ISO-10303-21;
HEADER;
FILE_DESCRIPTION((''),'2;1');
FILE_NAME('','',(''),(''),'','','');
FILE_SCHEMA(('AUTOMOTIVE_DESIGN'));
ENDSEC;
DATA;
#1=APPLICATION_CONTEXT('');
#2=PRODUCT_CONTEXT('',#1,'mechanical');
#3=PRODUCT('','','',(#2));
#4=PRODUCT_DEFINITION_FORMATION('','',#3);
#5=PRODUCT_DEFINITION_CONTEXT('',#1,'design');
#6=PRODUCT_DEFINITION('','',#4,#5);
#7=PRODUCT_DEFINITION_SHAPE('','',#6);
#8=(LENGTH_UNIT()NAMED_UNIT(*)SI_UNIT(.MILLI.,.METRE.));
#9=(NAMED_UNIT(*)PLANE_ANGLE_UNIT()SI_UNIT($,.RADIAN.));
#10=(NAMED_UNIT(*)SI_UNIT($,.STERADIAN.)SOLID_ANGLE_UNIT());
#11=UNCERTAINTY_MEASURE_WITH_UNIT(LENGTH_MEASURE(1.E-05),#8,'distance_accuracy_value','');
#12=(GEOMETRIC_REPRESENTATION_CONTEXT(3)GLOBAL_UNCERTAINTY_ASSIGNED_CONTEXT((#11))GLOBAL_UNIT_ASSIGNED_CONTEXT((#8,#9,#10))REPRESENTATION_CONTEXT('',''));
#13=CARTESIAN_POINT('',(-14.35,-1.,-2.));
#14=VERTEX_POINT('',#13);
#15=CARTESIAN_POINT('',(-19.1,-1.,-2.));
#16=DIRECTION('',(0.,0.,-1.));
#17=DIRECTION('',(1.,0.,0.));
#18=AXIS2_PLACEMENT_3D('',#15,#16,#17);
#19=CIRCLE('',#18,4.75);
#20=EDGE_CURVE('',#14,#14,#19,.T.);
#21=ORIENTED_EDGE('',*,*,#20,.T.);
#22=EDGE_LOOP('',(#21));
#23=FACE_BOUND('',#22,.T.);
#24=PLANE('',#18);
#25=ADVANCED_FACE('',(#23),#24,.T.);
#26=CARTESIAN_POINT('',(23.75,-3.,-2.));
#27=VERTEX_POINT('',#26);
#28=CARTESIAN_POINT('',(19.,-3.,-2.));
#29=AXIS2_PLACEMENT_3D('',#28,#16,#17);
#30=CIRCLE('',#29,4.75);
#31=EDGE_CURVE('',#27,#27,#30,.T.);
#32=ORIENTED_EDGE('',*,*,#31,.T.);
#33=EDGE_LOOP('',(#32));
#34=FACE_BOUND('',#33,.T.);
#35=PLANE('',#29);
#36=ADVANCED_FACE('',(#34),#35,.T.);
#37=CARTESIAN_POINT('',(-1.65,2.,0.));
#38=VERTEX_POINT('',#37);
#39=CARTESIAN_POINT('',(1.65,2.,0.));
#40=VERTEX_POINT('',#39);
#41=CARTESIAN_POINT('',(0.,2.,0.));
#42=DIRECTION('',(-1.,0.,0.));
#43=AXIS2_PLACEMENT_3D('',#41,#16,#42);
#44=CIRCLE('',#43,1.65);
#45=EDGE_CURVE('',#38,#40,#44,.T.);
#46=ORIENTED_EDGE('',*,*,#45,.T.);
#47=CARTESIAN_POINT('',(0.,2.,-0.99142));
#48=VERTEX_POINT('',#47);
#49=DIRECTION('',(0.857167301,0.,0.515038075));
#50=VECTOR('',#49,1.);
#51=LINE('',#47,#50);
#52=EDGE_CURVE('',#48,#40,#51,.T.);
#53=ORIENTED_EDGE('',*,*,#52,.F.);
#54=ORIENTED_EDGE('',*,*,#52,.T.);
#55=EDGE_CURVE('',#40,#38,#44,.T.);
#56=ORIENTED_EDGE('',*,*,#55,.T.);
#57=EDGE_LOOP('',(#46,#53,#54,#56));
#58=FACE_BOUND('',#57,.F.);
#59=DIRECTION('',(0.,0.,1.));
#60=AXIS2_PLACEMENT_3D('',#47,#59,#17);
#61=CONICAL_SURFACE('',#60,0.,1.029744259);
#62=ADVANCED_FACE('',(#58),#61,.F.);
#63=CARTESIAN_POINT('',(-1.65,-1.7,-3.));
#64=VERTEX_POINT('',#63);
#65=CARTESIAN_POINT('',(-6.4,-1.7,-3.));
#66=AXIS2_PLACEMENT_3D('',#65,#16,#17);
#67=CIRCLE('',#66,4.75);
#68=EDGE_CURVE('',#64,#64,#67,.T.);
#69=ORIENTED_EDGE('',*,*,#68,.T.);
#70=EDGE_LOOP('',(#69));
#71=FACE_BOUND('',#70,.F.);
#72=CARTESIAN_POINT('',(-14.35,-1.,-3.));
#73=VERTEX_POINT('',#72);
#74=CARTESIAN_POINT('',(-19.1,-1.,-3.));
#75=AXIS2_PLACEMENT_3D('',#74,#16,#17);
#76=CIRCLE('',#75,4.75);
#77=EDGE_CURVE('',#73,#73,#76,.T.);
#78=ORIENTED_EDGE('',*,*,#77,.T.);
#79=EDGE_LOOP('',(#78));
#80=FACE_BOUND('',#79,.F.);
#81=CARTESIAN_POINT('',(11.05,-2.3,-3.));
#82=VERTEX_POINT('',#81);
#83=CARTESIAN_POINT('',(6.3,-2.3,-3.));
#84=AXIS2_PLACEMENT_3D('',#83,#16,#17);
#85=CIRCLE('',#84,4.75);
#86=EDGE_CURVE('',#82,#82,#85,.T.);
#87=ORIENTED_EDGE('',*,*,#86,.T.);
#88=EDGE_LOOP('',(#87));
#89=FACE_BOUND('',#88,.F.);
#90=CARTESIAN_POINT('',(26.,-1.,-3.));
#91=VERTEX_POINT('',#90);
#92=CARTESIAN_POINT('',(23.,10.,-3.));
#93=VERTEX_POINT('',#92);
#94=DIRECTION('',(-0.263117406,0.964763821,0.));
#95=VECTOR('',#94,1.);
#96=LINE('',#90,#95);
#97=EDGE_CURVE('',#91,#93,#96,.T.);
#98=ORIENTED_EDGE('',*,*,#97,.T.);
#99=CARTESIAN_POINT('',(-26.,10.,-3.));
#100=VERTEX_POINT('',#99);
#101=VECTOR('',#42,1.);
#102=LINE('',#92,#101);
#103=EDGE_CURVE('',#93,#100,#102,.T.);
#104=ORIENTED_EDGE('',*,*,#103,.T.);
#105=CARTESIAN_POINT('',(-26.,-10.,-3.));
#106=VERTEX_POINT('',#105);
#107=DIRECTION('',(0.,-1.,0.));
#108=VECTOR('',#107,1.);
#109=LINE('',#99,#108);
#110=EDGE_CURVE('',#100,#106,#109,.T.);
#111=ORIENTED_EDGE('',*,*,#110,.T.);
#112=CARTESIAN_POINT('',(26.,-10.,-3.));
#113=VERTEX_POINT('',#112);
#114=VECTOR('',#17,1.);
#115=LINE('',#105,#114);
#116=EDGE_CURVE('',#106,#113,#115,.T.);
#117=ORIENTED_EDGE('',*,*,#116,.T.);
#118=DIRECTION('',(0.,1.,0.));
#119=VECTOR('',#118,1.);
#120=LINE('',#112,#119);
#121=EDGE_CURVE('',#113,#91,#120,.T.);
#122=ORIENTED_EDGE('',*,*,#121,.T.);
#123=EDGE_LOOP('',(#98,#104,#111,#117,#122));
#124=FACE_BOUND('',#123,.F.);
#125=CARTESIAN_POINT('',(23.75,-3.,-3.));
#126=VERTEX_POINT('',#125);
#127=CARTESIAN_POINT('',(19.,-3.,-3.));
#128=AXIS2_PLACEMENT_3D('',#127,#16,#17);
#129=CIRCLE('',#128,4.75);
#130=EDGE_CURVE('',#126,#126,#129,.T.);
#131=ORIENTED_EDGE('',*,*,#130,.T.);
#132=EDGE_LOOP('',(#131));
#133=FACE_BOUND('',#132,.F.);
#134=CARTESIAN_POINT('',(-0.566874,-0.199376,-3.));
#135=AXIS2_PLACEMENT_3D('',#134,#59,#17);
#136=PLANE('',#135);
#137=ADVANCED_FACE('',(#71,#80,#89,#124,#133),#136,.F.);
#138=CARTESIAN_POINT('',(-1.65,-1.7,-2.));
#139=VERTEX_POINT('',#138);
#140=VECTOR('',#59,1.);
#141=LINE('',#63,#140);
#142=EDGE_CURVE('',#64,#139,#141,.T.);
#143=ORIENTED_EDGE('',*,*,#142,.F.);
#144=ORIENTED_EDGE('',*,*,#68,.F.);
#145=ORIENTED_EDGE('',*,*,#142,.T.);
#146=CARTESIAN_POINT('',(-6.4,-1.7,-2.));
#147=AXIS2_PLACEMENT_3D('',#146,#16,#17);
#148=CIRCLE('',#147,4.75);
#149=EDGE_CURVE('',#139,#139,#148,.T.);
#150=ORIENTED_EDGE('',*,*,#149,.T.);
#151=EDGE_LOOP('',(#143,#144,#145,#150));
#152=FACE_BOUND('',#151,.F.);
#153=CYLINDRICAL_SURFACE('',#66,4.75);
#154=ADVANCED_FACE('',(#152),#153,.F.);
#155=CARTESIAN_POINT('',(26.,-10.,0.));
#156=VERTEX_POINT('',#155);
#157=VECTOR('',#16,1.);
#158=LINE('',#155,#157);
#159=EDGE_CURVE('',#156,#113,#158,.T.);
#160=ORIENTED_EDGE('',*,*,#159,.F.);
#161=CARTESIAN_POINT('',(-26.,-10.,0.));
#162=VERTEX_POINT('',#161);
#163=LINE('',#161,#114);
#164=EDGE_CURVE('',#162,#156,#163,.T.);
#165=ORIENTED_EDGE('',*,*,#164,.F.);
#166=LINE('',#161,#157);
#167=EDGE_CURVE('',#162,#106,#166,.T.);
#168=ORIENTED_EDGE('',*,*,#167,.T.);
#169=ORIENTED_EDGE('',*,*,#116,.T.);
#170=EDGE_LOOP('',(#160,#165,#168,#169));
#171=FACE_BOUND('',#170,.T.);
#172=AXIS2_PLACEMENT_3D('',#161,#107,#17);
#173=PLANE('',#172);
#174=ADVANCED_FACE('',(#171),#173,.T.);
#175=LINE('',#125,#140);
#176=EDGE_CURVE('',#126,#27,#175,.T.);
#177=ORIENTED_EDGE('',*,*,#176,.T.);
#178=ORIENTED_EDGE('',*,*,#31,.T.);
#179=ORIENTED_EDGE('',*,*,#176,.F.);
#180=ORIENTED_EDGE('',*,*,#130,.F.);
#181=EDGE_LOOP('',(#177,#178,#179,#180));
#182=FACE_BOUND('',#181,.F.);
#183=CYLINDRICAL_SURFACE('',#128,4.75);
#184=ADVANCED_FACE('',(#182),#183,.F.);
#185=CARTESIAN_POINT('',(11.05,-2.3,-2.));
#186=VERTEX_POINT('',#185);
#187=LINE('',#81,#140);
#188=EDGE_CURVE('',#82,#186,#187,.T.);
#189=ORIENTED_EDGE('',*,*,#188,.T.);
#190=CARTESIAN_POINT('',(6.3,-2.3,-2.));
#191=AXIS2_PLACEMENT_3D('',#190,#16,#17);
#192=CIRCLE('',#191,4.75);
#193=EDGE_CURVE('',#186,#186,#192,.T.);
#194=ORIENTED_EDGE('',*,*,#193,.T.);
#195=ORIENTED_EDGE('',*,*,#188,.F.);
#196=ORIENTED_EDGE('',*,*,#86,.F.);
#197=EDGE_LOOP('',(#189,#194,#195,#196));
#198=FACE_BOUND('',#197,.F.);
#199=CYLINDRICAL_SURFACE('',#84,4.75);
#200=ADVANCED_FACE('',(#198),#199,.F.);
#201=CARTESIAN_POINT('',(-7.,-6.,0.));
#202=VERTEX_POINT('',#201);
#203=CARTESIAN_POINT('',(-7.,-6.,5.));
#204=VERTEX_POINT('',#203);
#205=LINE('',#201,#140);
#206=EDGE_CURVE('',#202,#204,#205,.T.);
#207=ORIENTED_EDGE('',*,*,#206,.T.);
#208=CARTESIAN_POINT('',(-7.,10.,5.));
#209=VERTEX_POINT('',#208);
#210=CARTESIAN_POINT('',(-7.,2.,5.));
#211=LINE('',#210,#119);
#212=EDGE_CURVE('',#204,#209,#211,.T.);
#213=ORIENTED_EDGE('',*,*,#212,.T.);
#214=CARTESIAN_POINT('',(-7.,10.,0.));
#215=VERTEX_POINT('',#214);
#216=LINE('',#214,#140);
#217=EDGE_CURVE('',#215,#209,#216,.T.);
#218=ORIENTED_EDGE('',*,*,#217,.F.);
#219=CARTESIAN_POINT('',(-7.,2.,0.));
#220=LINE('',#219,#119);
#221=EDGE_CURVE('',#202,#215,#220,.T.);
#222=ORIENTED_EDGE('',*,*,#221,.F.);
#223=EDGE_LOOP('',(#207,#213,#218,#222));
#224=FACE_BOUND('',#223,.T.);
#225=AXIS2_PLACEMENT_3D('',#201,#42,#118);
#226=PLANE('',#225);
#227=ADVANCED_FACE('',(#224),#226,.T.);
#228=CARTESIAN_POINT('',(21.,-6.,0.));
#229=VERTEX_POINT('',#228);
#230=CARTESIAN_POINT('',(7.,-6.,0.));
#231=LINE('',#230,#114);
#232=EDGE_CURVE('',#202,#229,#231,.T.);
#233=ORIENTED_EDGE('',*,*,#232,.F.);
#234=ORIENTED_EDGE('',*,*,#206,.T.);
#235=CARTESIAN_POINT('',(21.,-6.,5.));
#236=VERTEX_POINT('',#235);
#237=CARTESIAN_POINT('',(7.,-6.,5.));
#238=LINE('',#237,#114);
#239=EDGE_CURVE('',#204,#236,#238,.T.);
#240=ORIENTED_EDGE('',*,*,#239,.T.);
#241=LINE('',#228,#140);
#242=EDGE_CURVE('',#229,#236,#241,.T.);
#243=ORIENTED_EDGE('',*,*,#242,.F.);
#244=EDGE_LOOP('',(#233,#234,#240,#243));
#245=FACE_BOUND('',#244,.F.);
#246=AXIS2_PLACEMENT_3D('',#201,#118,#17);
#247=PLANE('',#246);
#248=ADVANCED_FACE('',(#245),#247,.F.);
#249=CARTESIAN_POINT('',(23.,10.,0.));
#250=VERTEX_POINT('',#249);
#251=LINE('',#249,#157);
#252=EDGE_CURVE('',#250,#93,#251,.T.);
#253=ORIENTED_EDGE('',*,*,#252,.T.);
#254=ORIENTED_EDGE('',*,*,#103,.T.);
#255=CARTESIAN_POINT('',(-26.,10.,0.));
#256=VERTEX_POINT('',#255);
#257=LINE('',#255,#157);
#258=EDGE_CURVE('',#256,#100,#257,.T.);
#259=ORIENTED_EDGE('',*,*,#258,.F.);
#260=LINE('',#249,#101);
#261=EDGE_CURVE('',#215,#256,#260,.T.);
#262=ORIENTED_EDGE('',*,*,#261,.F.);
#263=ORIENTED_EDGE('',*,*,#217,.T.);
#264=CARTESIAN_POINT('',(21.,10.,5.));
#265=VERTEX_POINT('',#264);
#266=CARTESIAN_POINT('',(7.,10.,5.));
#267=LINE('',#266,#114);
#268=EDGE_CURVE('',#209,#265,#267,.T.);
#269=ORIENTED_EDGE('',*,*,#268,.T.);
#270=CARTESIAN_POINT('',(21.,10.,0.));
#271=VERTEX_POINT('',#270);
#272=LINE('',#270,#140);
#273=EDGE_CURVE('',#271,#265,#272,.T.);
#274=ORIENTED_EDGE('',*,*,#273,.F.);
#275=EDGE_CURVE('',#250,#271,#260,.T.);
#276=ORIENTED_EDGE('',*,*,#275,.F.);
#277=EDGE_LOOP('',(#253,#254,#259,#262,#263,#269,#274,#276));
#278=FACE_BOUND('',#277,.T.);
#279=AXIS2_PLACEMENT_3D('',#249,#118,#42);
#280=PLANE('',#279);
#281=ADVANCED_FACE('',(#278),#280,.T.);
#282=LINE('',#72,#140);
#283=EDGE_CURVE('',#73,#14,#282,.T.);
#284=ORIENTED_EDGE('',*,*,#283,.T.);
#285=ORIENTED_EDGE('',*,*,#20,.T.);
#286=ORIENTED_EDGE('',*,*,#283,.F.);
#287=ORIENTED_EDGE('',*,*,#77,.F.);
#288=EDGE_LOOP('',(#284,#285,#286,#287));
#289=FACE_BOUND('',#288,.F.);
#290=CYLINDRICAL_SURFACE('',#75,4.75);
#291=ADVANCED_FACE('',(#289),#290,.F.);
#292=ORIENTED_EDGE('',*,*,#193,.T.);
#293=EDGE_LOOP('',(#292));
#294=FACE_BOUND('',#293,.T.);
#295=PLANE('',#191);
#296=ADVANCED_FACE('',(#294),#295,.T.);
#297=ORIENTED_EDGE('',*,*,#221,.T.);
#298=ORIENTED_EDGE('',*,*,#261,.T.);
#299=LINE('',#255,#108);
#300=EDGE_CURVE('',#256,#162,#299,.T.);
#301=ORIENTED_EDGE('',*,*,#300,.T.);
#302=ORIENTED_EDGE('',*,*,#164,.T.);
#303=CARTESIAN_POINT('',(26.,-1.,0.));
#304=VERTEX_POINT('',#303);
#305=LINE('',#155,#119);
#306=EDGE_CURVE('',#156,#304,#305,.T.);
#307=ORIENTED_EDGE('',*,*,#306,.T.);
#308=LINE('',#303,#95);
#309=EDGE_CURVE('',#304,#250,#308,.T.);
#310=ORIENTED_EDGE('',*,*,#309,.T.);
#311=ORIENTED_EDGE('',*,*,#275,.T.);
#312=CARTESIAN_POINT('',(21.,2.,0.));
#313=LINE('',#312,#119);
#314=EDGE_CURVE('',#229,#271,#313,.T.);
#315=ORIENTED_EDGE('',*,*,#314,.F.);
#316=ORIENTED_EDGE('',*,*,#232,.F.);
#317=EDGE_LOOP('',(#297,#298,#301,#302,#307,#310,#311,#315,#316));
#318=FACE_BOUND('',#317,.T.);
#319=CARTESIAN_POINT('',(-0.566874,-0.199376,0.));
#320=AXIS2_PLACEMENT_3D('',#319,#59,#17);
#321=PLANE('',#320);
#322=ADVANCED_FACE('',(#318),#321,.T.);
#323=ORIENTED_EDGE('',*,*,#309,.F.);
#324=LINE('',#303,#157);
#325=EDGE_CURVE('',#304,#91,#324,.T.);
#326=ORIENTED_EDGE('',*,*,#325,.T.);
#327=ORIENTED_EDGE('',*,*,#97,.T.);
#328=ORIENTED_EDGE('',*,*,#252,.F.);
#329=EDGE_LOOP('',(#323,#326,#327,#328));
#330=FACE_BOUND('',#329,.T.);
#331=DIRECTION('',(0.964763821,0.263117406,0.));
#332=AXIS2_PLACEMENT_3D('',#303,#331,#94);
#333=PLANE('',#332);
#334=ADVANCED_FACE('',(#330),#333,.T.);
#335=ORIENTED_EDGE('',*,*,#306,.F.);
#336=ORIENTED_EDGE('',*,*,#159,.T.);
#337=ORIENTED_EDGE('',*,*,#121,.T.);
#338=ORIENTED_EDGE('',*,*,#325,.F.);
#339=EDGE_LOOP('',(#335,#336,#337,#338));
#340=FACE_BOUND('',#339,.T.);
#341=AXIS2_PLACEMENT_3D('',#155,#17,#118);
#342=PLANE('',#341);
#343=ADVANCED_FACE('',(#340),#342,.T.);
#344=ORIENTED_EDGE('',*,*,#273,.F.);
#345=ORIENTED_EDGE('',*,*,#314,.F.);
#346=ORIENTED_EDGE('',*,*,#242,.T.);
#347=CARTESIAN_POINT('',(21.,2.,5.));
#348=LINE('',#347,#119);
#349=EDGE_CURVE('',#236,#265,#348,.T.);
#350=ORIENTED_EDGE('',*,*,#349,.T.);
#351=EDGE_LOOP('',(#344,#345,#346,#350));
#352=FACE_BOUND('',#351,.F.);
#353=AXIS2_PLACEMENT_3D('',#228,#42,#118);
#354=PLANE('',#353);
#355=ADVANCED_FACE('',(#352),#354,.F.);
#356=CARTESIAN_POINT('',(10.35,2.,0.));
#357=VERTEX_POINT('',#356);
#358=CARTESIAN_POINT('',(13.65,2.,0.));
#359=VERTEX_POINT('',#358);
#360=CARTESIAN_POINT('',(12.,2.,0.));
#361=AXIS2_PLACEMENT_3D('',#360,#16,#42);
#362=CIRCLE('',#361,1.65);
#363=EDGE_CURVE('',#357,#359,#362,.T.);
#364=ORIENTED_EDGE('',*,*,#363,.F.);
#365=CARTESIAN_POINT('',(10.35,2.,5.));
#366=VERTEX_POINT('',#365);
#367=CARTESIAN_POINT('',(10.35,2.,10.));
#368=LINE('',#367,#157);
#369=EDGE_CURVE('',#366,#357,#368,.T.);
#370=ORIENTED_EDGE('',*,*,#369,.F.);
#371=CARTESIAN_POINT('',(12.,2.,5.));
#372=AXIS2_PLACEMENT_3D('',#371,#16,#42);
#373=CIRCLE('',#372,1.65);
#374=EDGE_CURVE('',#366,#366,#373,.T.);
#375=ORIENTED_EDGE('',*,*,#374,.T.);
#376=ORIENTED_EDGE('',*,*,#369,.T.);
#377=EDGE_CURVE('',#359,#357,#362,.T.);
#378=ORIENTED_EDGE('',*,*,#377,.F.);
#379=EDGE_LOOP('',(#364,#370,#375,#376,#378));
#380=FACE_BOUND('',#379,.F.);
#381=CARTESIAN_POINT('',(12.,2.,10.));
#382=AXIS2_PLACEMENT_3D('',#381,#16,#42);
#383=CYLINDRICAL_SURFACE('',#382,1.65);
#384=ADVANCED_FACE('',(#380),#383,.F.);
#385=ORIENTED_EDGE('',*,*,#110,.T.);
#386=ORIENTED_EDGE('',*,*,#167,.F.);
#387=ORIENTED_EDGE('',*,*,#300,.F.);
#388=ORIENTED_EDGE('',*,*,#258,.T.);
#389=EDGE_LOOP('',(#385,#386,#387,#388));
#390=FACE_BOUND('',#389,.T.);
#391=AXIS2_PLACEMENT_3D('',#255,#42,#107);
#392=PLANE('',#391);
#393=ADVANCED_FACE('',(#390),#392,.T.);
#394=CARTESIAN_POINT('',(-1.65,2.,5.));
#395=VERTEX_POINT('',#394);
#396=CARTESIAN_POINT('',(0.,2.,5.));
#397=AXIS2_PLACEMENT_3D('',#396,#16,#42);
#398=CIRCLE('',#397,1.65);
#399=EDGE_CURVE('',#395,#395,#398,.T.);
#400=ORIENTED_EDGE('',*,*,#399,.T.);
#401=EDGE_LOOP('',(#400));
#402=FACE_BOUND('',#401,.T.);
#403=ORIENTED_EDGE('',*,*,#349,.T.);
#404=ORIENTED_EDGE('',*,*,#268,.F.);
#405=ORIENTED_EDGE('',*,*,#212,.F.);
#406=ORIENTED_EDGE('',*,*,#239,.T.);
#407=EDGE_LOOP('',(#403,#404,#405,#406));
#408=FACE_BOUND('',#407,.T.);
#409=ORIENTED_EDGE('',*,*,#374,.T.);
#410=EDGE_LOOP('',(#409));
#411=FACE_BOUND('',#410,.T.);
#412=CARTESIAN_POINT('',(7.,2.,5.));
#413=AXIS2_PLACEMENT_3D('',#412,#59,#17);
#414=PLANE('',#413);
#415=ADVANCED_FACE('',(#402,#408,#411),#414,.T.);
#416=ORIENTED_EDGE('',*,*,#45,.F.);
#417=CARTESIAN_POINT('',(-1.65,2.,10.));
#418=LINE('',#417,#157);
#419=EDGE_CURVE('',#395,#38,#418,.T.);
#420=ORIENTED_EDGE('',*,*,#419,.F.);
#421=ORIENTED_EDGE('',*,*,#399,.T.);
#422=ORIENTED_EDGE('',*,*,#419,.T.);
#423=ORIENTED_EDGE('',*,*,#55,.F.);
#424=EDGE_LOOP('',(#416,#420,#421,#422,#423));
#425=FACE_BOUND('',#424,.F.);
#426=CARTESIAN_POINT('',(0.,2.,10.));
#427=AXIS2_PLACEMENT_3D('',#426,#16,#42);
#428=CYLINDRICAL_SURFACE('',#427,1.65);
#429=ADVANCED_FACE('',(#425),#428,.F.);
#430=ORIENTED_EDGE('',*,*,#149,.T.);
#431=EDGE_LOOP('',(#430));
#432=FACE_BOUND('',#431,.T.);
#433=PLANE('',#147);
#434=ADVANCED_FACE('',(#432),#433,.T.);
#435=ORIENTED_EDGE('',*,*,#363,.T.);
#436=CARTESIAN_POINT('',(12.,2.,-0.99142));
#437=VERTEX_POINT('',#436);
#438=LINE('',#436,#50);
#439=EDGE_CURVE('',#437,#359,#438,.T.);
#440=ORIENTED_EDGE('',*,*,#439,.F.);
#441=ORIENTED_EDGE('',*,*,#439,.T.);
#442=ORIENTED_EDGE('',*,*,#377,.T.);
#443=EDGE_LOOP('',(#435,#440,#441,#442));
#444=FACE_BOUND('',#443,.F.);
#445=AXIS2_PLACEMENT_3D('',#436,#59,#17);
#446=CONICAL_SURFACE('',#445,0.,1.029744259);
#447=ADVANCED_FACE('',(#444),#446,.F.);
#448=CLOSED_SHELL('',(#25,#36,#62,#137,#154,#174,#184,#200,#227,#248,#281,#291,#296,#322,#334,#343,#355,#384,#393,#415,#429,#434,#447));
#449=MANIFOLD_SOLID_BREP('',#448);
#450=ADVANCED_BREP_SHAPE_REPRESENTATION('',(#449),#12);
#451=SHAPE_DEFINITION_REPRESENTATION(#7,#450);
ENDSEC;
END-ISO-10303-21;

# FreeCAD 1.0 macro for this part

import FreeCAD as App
import Part
import Sketcher
Q = App.Units.Quantity


def add_polygon(sketch, points):
    """Adds a closed chain of lines whose ends are joined by coincident constraints."""
    first, n = sketch.GeometryCount, len(points)
    for a, b in zip(points, points[1:] + points[:1]):
        sketch.addGeometry(Part.LineSegment(App.Vector(*a, 0), App.Vector(*b, 0)), False)
    for i in range(n):
        sketch.addConstraint(Sketcher.Constraint("Coincident", first + i, 2, first + (i + 1) % n, 1))

doc = App.newDocument("Part")
body = doc.addObject("PartDesign::Body", "Body")

# Sketch on XY plane
sketch1 = doc.addObject("Sketcher::SketchObject", "Sketch")
body.addObject(sketch1)
sketch1.AttachmentSupport = (doc.XY_Plane, [""])
sketch1.MapMode = "FlatFace"
add_polygon(sketch1, [(23, 10), (-26, 10), (-26, -10), (26, -10), (26, -1)])  # lines 0-4
sketch1.addConstraint(Sketcher.Constraint("Horizontal", 0))
sketch1.addConstraint(Sketcher.Constraint("Vertical", 1))
sketch1.addConstraint(Sketcher.Constraint("Horizontal", 2))
sketch1.addConstraint(Sketcher.Constraint("Vertical", 3))
sketch1.addConstraint(Sketcher.Constraint("Symmetric", 0, 2, 2, 2, -1, 1))
sketch1.addConstraint(Sketcher.Constraint("DistanceX", 0, 2, 0, 1, Q("49 mm")))
sketch1.addConstraint(Sketcher.Constraint("DistanceX", 2, 1, 2, 2, Q("52 mm")))
sketch1.addConstraint(Sketcher.Constraint("DistanceY", 1, 2, 1, 1, Q("20 mm")))
sketch1.addConstraint(Sketcher.Constraint("DistanceY", 3, 1, 3, 2, Q("9 mm")))
pad1 = doc.addObject("PartDesign::Pad", "Pad")
body.addObject(pad1)
pad1.Profile = sketch1
pad1.Length = 3
pad1.Reversed = True

# Sketch on XY plane
sketch2 = doc.addObject("Sketcher::SketchObject", "Sketch001")
body.addObject(sketch2)
sketch2.AttachmentSupport = (doc.XY_Plane, [""])
sketch2.MapMode = "FlatFace"
sketch2.AttachmentOffset = App.Placement(App.Vector(0, 0, -3), App.Rotation())
sketch2.addGeometry(Part.Circle(App.Vector(19, -3, 0), App.Vector(0, 0, 1), 4.75), False)
sketch2.addGeometry(Part.Circle(App.Vector(6.3, -2.3, 0), App.Vector(0, 0, 1), 4.75), False)
sketch2.addGeometry(Part.Circle(App.Vector(-6.4, -1.7, 0), App.Vector(0, 0, 1), 4.75), False)
sketch2.addGeometry(Part.Circle(App.Vector(-19.1, -1, 0), App.Vector(0, 0, 1), 4.75), False)
sketch2.addConstraint(Sketcher.Constraint("Equal", 0, 1))
sketch2.addConstraint(Sketcher.Constraint("Equal", 1, 2))
sketch2.addConstraint(Sketcher.Constraint("Equal", 2, 3))
sketch2.addConstraint(Sketcher.Constraint("Diameter", 0, Q("9.5 mm")))
sketch2.addConstraint(Sketcher.Constraint("DistanceX", -1, 1, 0, 3, Q("19 mm")))
sketch2.addConstraint(Sketcher.Constraint("DistanceY", 0, 3, -1, 1, Q("3 mm")))
sketch2.addConstraint(Sketcher.Constraint("DistanceY", 3, 3, -1, 1, Q("1 mm")))
sketch2.addConstraint(Sketcher.Constraint("DistanceX", -1, 1, 1, 3, Q("6.3 mm")))
sketch2.addConstraint(Sketcher.Constraint("DistanceY", 1, 3, -1, 1, Q("2.3 mm")))
sketch2.addConstraint(Sketcher.Constraint("DistanceX", 2, 3, -1, 1, Q("6.4 mm")))
sketch2.addConstraint(Sketcher.Constraint("DistanceY", 2, 3, -1, 1, Q("1.7 mm")))
sketch2.addConstraint(Sketcher.Constraint("DistanceX", 3, 3, -1, 1, Q("19.1 mm")))
pocket1 = doc.addObject("PartDesign::Pocket", "Pocket")
body.addObject(pocket1)
pocket1.Profile = sketch2
pocket1.Length = 1
pocket1.Reversed = True

# Sketch on XY plane
sketch3 = doc.addObject("Sketcher::SketchObject", "Sketch002")
body.addObject(sketch3)
sketch3.AttachmentSupport = (doc.XY_Plane, [""])
sketch3.MapMode = "FlatFace"
add_polygon(sketch3, [(-7, 10), (-7, -6), (21, -6), (21, 10)])  # lines 0-3
sketch3.addConstraint(Sketcher.Constraint("Vertical", 0))
sketch3.addConstraint(Sketcher.Constraint("Horizontal", 1))
sketch3.addConstraint(Sketcher.Constraint("Vertical", 2))
sketch3.addConstraint(Sketcher.Constraint("Horizontal", 3))
sketch3.addConstraint(Sketcher.Constraint("DistanceX", 1, 1, 1, 2, Q("28 mm")))
sketch3.addConstraint(Sketcher.Constraint("DistanceY", 0, 2, 0, 1, Q("16 mm")))
sketch3.addConstraint(Sketcher.Constraint("DistanceX", 0, 2, -1, 1, Q("7 mm")))
sketch3.addConstraint(Sketcher.Constraint("DistanceY", 0, 2, -1, 1, Q("6 mm")))
pad2 = doc.addObject("PartDesign::Pad", "Pad001")
body.addObject(pad2)
pad2.Profile = sketch3
pad2.Length = 5

# Sketch on XY plane
sketch4 = doc.addObject("Sketcher::SketchObject", "Sketch003")
body.addObject(sketch4)
sketch4.AttachmentSupport = (doc.XY_Plane, [""])
sketch4.MapMode = "FlatFace"
sketch4.AttachmentOffset = App.Placement(App.Vector(0, 0, 5), App.Rotation())
sketch4.addGeometry(Part.Circle(App.Vector(0, 2, 0), App.Vector(0, 0, 1), 1.65), False)
sketch4.addGeometry(Part.Circle(App.Vector(12, 2, 0), App.Vector(0, 0, 1), 1.65), False)
sketch4.addConstraint(Sketcher.Constraint("Equal", 0, 1))
sketch4.addConstraint(Sketcher.Constraint("PointOnObject", 0, 3, -2))
sketch4.addConstraint(Sketcher.Constraint("Horizontal", 0, 3, 1, 3))
sketch4.addConstraint(Sketcher.Constraint("Diameter", 0, Q("3.3 mm")))
sketch4.addConstraint(Sketcher.Constraint("DistanceY", -1, 1, 0, 3, Q("2 mm")))
sketch4.addConstraint(Sketcher.Constraint("DistanceX", -1, 1, 1, 3, Q("12 mm")))
doc.recompute()
hole = doc.addObject("PartDesign::Hole", "Hole")
body.addObject(hole)
hole.Profile = sketch4
hole.ThreadType = "None"
hole.Diameter = 3.3
hole.DepthType = "Dimension"
hole.Depth = 5
hole.DrillPoint = "Angled"
hole.DrillPointAngle = 118

doc.recompute()
